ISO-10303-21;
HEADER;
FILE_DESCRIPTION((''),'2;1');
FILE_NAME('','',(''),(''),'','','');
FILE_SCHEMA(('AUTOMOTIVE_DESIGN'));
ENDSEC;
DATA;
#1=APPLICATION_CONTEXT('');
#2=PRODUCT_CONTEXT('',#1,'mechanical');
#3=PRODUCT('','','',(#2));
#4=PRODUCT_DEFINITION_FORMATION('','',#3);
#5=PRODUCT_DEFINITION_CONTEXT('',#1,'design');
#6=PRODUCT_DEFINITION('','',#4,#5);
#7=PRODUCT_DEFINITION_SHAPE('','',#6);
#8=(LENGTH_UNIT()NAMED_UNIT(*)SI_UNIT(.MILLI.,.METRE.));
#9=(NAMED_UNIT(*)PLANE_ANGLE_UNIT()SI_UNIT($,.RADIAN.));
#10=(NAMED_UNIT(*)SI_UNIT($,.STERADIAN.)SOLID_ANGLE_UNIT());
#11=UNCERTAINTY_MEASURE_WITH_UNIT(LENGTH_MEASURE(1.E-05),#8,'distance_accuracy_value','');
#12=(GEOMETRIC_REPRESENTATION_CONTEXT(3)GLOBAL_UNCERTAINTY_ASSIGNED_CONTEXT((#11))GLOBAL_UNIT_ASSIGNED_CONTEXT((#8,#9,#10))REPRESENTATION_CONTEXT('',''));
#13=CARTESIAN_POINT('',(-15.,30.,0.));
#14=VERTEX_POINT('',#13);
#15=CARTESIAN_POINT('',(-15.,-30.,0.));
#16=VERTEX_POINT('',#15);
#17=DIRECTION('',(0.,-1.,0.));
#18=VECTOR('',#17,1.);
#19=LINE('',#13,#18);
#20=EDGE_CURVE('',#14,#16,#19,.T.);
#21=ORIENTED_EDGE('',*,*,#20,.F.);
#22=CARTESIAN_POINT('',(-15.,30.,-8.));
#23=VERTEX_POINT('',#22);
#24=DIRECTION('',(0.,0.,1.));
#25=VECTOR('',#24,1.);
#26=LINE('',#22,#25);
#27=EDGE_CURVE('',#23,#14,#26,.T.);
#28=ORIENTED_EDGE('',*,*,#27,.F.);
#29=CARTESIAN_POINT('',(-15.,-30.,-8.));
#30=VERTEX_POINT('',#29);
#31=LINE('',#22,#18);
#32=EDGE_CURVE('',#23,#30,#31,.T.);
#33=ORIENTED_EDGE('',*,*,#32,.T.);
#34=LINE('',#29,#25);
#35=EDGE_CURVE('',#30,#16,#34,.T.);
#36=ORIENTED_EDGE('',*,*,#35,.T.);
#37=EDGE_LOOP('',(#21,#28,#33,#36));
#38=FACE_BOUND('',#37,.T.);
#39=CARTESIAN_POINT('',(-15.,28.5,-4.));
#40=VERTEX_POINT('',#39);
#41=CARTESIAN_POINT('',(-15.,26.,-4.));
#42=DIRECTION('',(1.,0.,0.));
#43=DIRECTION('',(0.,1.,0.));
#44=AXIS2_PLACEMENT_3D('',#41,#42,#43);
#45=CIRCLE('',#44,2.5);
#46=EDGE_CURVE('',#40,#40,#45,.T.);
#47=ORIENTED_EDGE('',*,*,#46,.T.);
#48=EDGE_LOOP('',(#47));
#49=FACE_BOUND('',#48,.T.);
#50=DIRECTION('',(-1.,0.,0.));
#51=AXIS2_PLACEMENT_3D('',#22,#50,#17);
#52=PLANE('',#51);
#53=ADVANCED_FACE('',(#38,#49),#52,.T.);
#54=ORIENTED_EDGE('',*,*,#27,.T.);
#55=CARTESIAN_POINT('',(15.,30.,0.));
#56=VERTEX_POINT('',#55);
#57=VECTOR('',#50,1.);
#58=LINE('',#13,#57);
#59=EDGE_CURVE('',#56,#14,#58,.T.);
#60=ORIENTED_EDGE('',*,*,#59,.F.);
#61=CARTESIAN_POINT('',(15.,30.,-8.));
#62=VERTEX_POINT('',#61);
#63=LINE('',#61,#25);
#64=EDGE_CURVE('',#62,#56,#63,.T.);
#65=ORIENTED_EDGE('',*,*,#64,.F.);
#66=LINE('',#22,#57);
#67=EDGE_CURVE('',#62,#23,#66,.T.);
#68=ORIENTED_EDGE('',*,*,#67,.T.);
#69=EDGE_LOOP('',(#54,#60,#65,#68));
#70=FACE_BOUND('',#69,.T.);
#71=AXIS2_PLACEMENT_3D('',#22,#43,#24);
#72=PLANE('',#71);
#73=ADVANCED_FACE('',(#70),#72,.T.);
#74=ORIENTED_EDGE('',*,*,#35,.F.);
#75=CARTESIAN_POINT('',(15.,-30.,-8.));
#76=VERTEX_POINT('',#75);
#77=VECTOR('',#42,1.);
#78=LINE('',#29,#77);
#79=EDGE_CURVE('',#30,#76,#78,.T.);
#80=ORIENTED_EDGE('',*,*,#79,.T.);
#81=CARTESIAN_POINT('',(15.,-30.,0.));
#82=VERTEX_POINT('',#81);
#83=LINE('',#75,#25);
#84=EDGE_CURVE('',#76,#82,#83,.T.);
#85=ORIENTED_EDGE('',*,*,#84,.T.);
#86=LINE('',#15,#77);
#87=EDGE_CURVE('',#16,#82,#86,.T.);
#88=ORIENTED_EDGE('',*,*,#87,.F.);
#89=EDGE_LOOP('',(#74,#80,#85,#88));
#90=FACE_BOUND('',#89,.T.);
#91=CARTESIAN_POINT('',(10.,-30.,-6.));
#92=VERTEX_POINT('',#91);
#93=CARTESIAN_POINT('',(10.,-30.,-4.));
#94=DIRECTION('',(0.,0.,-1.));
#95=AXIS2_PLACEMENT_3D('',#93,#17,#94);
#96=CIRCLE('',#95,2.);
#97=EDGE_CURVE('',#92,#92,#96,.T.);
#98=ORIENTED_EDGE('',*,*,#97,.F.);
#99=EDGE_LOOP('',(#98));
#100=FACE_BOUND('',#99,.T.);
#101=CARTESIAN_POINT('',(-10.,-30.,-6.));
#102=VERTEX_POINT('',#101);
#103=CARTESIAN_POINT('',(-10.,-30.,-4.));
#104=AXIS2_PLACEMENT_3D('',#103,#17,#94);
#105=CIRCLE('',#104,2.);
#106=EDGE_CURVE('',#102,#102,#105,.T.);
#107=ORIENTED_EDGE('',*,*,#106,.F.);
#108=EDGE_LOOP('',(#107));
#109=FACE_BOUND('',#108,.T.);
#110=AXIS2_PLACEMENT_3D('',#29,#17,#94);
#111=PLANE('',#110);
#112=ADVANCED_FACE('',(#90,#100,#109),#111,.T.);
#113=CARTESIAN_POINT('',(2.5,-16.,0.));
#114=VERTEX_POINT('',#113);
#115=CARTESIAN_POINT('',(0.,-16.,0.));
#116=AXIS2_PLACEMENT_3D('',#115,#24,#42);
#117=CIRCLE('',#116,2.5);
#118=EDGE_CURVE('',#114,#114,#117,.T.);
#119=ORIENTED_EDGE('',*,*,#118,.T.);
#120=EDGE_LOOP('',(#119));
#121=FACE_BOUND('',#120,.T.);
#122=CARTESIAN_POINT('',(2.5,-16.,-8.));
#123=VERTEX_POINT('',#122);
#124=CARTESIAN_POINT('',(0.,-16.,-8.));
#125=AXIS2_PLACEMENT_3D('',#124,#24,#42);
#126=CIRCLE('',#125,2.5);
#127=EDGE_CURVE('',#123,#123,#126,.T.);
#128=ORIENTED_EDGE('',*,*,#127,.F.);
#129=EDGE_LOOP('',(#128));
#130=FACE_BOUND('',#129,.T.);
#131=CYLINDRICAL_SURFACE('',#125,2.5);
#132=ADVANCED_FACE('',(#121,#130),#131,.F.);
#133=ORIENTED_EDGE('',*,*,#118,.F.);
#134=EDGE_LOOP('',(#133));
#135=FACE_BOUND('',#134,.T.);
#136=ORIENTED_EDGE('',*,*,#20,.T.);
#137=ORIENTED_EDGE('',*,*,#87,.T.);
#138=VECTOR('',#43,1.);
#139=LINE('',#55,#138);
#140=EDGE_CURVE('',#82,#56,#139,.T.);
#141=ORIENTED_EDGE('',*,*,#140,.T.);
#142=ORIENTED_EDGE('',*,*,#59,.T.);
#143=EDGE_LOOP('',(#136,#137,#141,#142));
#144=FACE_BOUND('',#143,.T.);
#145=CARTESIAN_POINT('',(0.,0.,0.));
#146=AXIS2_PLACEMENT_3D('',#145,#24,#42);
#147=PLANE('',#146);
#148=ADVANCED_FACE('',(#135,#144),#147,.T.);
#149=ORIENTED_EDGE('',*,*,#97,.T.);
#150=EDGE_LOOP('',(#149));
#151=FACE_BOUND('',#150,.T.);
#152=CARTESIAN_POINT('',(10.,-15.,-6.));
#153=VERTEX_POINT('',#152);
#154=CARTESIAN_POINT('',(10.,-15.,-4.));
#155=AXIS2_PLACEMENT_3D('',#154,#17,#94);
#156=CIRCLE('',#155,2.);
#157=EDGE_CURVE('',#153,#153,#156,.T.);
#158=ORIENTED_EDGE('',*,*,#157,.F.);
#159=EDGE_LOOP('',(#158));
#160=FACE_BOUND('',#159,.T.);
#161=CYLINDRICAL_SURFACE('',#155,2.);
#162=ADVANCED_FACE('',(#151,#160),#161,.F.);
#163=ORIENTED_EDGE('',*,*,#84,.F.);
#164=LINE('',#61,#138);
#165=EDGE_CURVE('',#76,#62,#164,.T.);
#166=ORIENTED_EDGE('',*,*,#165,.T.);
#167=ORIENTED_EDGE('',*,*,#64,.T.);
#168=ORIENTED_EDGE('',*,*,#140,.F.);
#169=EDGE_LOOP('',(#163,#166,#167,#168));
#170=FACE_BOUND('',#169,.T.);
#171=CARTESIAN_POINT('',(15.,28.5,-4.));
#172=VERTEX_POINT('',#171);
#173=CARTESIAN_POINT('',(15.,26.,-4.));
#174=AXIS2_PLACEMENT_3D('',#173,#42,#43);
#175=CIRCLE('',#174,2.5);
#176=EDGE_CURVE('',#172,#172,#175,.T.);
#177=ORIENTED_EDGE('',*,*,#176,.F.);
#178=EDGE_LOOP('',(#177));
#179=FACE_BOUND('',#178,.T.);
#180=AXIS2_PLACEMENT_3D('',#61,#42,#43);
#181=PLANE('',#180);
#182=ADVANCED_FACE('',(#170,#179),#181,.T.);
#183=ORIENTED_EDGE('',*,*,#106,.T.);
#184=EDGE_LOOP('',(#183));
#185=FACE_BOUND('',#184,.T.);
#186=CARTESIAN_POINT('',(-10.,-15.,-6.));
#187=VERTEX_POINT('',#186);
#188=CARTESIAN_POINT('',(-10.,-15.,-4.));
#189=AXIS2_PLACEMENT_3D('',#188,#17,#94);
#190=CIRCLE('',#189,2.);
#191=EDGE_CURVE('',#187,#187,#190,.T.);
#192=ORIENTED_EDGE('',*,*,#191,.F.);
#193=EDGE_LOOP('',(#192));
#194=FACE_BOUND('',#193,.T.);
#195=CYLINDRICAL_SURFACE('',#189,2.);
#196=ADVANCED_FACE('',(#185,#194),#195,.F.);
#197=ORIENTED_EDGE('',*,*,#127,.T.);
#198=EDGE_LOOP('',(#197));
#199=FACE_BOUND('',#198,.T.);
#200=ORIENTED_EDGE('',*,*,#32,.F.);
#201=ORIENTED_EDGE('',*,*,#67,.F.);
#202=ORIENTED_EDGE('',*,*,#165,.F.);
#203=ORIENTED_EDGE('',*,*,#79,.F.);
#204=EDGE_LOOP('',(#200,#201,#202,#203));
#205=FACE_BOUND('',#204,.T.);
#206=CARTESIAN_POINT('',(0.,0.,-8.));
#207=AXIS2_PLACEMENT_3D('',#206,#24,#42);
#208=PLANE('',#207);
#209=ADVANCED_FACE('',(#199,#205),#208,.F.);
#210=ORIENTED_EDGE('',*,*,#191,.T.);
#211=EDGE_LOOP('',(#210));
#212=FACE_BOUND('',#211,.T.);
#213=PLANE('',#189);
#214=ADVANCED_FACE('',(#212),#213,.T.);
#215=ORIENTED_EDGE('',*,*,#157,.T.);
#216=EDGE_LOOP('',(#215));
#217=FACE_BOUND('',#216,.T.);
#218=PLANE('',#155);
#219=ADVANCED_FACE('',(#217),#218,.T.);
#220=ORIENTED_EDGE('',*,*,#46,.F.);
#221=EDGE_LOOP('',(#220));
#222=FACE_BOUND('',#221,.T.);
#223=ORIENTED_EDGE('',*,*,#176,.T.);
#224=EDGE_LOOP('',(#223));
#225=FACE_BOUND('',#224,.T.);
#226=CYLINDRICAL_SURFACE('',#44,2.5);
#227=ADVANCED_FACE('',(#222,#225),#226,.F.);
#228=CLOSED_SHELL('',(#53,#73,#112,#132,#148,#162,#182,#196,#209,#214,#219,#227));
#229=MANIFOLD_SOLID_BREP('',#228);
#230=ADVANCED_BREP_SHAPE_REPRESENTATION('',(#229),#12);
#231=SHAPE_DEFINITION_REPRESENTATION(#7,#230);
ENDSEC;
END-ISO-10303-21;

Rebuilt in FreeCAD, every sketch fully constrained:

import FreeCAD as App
import Part
import Sketcher


def add_polygon(sketch, points):
    """Adds a closed chain of lines whose ends are joined by coincident constraints."""
    first, n = sketch.GeometryCount, len(points)
    for a, b in zip(points, points[1:] + points[:1]):
        sketch.addGeometry(Part.LineSegment(App.Vector(*a, 0), App.Vector(*b, 0)), False)
    for i in range(n):
        sketch.addConstraint(Sketcher.Constraint("Coincident", first + i, 2, first + (i + 1) % n, 1))

doc = App.newDocument("Part")
params = doc.addObject("Spreadsheet::Sheet", "Params")
for row, (alias, value) in enumerate([
    ("sketch1_width", "30 mm"),
    ("sketch1_height", "60 mm"),
    ("pad1_length", "8 mm"),
    ("sketch2_diameter", "5 mm"),
    ("sketch3_diameter", "4 mm"),
    ("pocket2_length", "15 mm"),
    ("sketch4_diameter", "5 mm"),
], start=1):
    params.set(f"A{row}", alias)
    params.set(f"B{row}", "=" + value)
    params.setAlias(f"B{row}", alias)

body = doc.addObject("PartDesign::Body", "Body")

# Sketch on XY plane
sketch1 = body.newObject("Sketcher::SketchObject", "Sketch")
sketch1.AttachmentSupport = (doc.getObject("XY_Plane"), [""])
sketch1.MapMode = "FlatFace"
add_polygon(sketch1, [(-15, 30), (-15, -30), (15, -30), (15, 30)])  # lines 0-3
sketch1.addConstraint([
    Sketcher.Constraint("Vertical", 0),
    Sketcher.Constraint("Horizontal", 1),
    Sketcher.Constraint("Vertical", 2),
    Sketcher.Constraint("Horizontal", 3),
    Sketcher.Constraint("Symmetric", 0, 2, 2, 2, -1, 1),
    Sketcher.Constraint("DistanceX", 1, 1, 1, 2, 30.0),
    Sketcher.Constraint("DistanceY", 0, 2, 0, 1, 60.0),
])
sketch1.setExpression("Constraints[9]", "Params.sketch1_width")
sketch1.setExpression("Constraints[10]", "Params.sketch1_height")
pad1 = body.newObject("PartDesign::Pad", "Pad")
pad1.Profile = sketch1
pad1.setExpression("Length", "Params.pad1_length")
pad1.Reversed = True

# Sketch on YZ plane
sketch2 = body.newObject("Sketcher::SketchObject", "Sketch001")
sketch2.AttachmentSupport = (doc.getObject("YZ_Plane"), [""])
sketch2.MapMode = "FlatFace"
sketch2.AttachmentOffset = App.Placement(App.Vector(0, 0, 15), App.Rotation())
sketch2.addGeometry(Part.Circle(App.Vector(26, -4, 0), App.Vector(0, 0, 1), 2.5), False)
sketch2.addConstraint([
    Sketcher.Constraint("Diameter", 0, 5.0),
    Sketcher.Constraint("DistanceX", -1, 1, 0, 3, 26.0),
    Sketcher.Constraint("DistanceY", 0, 3, -1, 1, 4.0),
])
sketch2.setExpression("Constraints[0]", "Params.sketch2_diameter")
pocket1 = body.newObject("PartDesign::Pocket", "Pocket")
pocket1.Profile = sketch2
pocket1.Type = "ThroughAll"

# Sketch on XZ plane
sketch3 = body.newObject("Sketcher::SketchObject", "Sketch002")
sketch3.AttachmentSupport = (doc.getObject("XZ_Plane"), [""])
sketch3.MapMode = "FlatFace"
sketch3.AttachmentOffset = App.Placement(App.Vector(0, 0, 30), App.Rotation())
sketch3.addGeometry([
    Part.Circle(App.Vector(-10, -4, 0), App.Vector(0, 0, 1), 2),
    Part.Circle(App.Vector(10, -4, 0), App.Vector(0, 0, 1), 2),
], False)
sketch3.addConstraint([
    Sketcher.Constraint("Equal", 0, 1),
    Sketcher.Constraint("Symmetric", 0, 3, 1, 3, -2),
    Sketcher.Constraint("Diameter", 0, 4.0),
    Sketcher.Constraint("DistanceX", 0, 3, -1, 1, 10.0),
    Sketcher.Constraint("DistanceY", 0, 3, -1, 1, 4.0),
])
sketch3.setExpression("Constraints[2]", "Params.sketch3_diameter")
pocket2 = body.newObject("PartDesign::Pocket", "Pocket001")
pocket2.Profile = sketch3
pocket2.setExpression("Length", "Params.pocket2_length")

# Sketch on XY plane
sketch4 = body.newObject("Sketcher::SketchObject", "Sketch003")
sketch4.AttachmentSupport = (doc.getObject("XY_Plane"), [""])
sketch4.MapMode = "FlatFace"
sketch4.addGeometry(Part.Circle(App.Vector(0, -16, 0), App.Vector(0, 0, 1), 2.5), False)
sketch4.addConstraint([
    Sketcher.Constraint("PointOnObject", 0, 3, -2),
    Sketcher.Constraint("Diameter", 0, 5.0),
    Sketcher.Constraint("DistanceY", 0, 3, -1, 1, 16.0),
])
sketch4.setExpression("Constraints[1]", "Params.sketch4_diameter")
pocket3 = body.newObject("PartDesign::Pocket", "Pocket002")
pocket3.Profile = sketch4
pocket3.Type = "ThroughAll"

doc.recompute()
